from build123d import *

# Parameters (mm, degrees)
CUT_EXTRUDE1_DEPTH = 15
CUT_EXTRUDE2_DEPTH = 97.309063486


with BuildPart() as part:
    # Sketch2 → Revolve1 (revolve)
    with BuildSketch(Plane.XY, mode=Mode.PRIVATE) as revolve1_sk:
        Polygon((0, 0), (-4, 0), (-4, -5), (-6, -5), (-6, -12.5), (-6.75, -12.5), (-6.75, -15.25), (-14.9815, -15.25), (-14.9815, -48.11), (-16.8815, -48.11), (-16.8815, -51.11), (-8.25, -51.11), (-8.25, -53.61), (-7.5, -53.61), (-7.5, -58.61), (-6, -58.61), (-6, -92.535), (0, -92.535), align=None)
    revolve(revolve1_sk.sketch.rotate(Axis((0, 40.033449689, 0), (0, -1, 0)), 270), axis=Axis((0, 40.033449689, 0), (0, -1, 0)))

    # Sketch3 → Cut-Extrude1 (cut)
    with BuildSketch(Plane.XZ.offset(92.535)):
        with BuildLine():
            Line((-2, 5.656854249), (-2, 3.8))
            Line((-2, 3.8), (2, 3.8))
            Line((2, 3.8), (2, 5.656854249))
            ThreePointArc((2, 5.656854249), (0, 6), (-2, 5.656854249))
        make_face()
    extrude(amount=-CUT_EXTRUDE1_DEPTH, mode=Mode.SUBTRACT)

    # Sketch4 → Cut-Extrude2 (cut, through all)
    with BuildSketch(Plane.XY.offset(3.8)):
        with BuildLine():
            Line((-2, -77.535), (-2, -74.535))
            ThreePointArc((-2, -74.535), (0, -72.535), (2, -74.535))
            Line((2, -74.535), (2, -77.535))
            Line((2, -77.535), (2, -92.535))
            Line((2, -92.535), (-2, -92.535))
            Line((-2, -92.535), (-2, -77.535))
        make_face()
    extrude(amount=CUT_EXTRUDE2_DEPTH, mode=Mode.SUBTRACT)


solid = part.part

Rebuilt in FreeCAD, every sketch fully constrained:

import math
import FreeCAD as App
import Part
import Sketcher

V = App.Vector


def add_polygon(sketch, points):
    """Adds a closed chain of lines whose ends are joined by coincident constraints."""
    first, n = sketch.GeometryCount, len(points)
    for a, b in zip(points, points[1:] + points[:1]):
        sketch.addGeometry(Part.LineSegment(App.Vector(*a, 0), App.Vector(*b, 0)), False)
    for i in range(n):
        sketch.addConstraint(Sketcher.Constraint("Coincident", first + i, 2, first + (i + 1) % n, 1))

doc = App.newDocument("Part")
params = doc.addObject("Spreadsheet::Sheet", "Params")
for row, (alias, value) in enumerate([
    ("sketch1_width", "4 mm"),
    ("sketch1_width2", "2 mm"),
    ("sketch1_height", "5 mm"),
    ("sketch1_height2", "3 mm"),
    ("sketch1_width3", "1.9 mm"),
    ("revolution_angle", "360 deg"),
    ("sketch2_radius", "6 mm"),
    ("sketch2_width", "4 mm"),
    ("pocket1_length", "15 mm"),
    ("sketch3_radius", "2 mm"),
    ("sketch3_height", "18 mm"),
], start=1):
    params.set(f"A{row}", alias)
    params.set(f"B{row}", "=" + value)
    params.setAlias(f"B{row}", alias)

body = doc.addObject("PartDesign::Body", "Body")

sketch1 = body.newObject("Sketcher::SketchObject", "Sketch")
sketch1.AttachmentSupport = (doc.getObject("XY_Plane"), [""])
sketch1.MapMode = "FlatFace"
add_polygon(sketch1, [(0, 0), (-4, 0), (-4, -5), (-6, -5), (-6, -12.5), (-6.8, -12.5), (-6.8, -15.2), (-15, -15.2), (-15, -48.1), (-16.9, -48.1), (-16.9, -51.1), (-8.2, -51.1), (-8.2, -53.6), (-7.5, -53.6), (-7.5, -58.6), (-6, -58.6), (-6, -92.5), (0, -92.5)])
sketch1.addConstraint([
    Sketcher.Constraint("Horizontal", 0),
    Sketcher.Constraint("Vertical", 1),
    Sketcher.Constraint("Horizontal", 2),
    Sketcher.Constraint("Vertical", 3),
    Sketcher.Constraint("Horizontal", 4),
    Sketcher.Constraint("Vertical", 5),
    Sketcher.Constraint("Horizontal", 6),
    Sketcher.Constraint("Vertical", 7),
    Sketcher.Constraint("Horizontal", 8),
    Sketcher.Constraint("Vertical", 9),
    Sketcher.Constraint("Horizontal", 10),
    Sketcher.Constraint("Vertical", 11),
    Sketcher.Constraint("Horizontal", 12),
    Sketcher.Constraint("Vertical", 13),
    Sketcher.Constraint("Horizontal", 14),
    Sketcher.Constraint("Vertical", 15),
    Sketcher.Constraint("Horizontal", 16),
    Sketcher.Constraint("Vertical", 17),
    Sketcher.Constraint("Coincident", 17, 2, -1, 1),
    Sketcher.Constraint("Vertical", 3, 2, 14, 2),
    Sketcher.Constraint("Equal", 4, 12),
    Sketcher.Constraint("Equal", 1, 13),
    Sketcher.Constraint("DistanceX", 0, 2, 0, 1, 4.0),
    Sketcher.Constraint("DistanceX", 2, 2, 2, 1, 2.0),
    Sketcher.Constraint("DistanceY", 1, 2, 1, 1, 5.0),
    Sketcher.Constraint("DistanceY", 9, 2, 9, 1, 3.0),
    Sketcher.Constraint("DistanceX", 8, 2, 8, 1, 1.9),
    Sketcher.Constraint("DistanceX", 14, 1, 14, 2, 1.5),
    Sketcher.Constraint("DistanceY", 3, 2, 3, 1, 7.5),
    Sketcher.Constraint("DistanceY", 11, 2, 11, 1, 2.5),
    Sketcher.Constraint("DistanceX", 4, 2, 4, 1, 0.75),
    Sketcher.Constraint("DistanceY", 5, 2, 5, 1, 2.75),
    Sketcher.Constraint("DistanceY", 7, 2, 7, 1, 32.86),
    Sketcher.Constraint("DistanceY", 15, 2, 15, 1, 33.925),
    Sketcher.Constraint("DistanceX", 6, 2, 6, 1, 8.2315),
])
sketch1.setExpression("Constraints[40]", "Params.sketch1_width")
sketch1.setExpression("Constraints[41]", "Params.sketch1_width2")
sketch1.setExpression("Constraints[42]", "Params.sketch1_height")
sketch1.setExpression("Constraints[43]", "Params.sketch1_height2")
sketch1.setExpression("Constraints[44]", "Params.sketch1_width3")
revolution = body.newObject("PartDesign::Revolution", "Revolution")
revolution.Profile = sketch1
revolution.ReferenceAxis = (sketch1, ["V_Axis"])
revolution.setExpression("Angle", "Params.revolution_angle")

sketch2 = body.newObject("Sketcher::SketchObject", "Sketch001")
sketch2.AttachmentSupport = (doc.getObject("XZ_Plane"), [""])
sketch2.MapMode = "FlatFace"
sketch2.AttachmentOffset = App.Placement(V(0, 0, 92.535), App.Rotation())
sketch2.addGeometry([
    Part.LineSegment(V(-2, 5.7, 0), V(-2, 3.8, 0)),
    Part.LineSegment(V(-2, 3.8, 0), V(2, 3.8, 0)),
    Part.LineSegment(V(2, 3.8, 0), V(2, 5.7, 0)),
    Part.ArcOfCircle(Part.Circle(V(0, 0, 0), V(0, 0, 1), 6), math.radians(71), math.radians(109)),
], False)
sketch2.addConstraint([
    Sketcher.Constraint("Coincident", 0, 2, 1, 1),
    Sketcher.Constraint("Coincident", 1, 2, 2, 1),
    Sketcher.Constraint("Coincident", 2, 2, 3, 1),
    Sketcher.Constraint("Coincident", 3, 2, 0, 1),
    Sketcher.Constraint("Vertical", 0),
    Sketcher.Constraint("Horizontal", 1),
    Sketcher.Constraint("Vertical", 2),
    Sketcher.Constraint("Coincident", 3, 3, -1, 1),
    Sketcher.Constraint("Horizontal", 2, 2, 3, 2),
    Sketcher.Constraint("Radius", 3, 6.0),
    Sketcher.Constraint("DistanceX", 1, 1, 1, 2, 4.0),
    Sketcher.Constraint("DistanceY", -1, 1, 0, 2, 3.8),
])
sketch2.setExpression("Constraints[9]", "Params.sketch2_radius")
sketch2.setExpression("Constraints[10]", "Params.sketch2_width")
pocket1 = body.newObject("PartDesign::Pocket", "Pocket")
pocket1.Profile = sketch2
pocket1.setExpression("Length", "Params.pocket1_length")

sketch3 = body.newObject("Sketcher::SketchObject", "Sketch002")
sketch3.AttachmentSupport = (doc.getObject("XY_Plane"), [""])
sketch3.MapMode = "FlatFace"
sketch3.AttachmentOffset = App.Placement(V(0, 0, 3.8), App.Rotation())
sketch3.addGeometry([
    Part.ArcOfCircle(Part.Circle(V(0, -74.5, 0), V(0, 0, 1), 2), math.radians(0), math.radians(180)),
    Part.LineSegment(V(-2, -74.5, 0), V(-2, -92.5, 0)),
    Part.LineSegment(V(-2, -92.5, 0), V(2, -92.5, 0)),
    Part.LineSegment(V(2, -92.5, 0), V(2, -74.5, 0)),
], False)
sketch3.addConstraint([
    Sketcher.Constraint("Tangent", 0, 2, 1, 1),
    Sketcher.Constraint("Coincident", 1, 2, 2, 1),
    Sketcher.Constraint("Coincident", 2, 2, 3, 1),
    Sketcher.Constraint("Tangent", 3, 2, 0, 1),
    Sketcher.Constraint("Vertical", 1),
    Sketcher.Constraint("Horizontal", 2),
    Sketcher.Constraint("Vertical", 3),
    Sketcher.Constraint("PointOnObject", 0, 3, -2),
    Sketcher.Constraint("Radius", 0, 2.0),
    Sketcher.Constraint("DistanceY", 1, 2, 1, 1, 18.0),
    Sketcher.Constraint("DistanceY", 0, 3, -1, 1, 74.535),
])
sketch3.setExpression("Constraints[8]", "Params.sketch3_radius")
sketch3.setExpression("Constraints[9]", "Params.sketch3_height")
pocket2 = body.newObject("PartDesign::Pocket", "Pocket001")
pocket2.Profile = sketch3
pocket2.Type = "ThroughAll"
pocket2.Reversed = True

doc.recompute()
